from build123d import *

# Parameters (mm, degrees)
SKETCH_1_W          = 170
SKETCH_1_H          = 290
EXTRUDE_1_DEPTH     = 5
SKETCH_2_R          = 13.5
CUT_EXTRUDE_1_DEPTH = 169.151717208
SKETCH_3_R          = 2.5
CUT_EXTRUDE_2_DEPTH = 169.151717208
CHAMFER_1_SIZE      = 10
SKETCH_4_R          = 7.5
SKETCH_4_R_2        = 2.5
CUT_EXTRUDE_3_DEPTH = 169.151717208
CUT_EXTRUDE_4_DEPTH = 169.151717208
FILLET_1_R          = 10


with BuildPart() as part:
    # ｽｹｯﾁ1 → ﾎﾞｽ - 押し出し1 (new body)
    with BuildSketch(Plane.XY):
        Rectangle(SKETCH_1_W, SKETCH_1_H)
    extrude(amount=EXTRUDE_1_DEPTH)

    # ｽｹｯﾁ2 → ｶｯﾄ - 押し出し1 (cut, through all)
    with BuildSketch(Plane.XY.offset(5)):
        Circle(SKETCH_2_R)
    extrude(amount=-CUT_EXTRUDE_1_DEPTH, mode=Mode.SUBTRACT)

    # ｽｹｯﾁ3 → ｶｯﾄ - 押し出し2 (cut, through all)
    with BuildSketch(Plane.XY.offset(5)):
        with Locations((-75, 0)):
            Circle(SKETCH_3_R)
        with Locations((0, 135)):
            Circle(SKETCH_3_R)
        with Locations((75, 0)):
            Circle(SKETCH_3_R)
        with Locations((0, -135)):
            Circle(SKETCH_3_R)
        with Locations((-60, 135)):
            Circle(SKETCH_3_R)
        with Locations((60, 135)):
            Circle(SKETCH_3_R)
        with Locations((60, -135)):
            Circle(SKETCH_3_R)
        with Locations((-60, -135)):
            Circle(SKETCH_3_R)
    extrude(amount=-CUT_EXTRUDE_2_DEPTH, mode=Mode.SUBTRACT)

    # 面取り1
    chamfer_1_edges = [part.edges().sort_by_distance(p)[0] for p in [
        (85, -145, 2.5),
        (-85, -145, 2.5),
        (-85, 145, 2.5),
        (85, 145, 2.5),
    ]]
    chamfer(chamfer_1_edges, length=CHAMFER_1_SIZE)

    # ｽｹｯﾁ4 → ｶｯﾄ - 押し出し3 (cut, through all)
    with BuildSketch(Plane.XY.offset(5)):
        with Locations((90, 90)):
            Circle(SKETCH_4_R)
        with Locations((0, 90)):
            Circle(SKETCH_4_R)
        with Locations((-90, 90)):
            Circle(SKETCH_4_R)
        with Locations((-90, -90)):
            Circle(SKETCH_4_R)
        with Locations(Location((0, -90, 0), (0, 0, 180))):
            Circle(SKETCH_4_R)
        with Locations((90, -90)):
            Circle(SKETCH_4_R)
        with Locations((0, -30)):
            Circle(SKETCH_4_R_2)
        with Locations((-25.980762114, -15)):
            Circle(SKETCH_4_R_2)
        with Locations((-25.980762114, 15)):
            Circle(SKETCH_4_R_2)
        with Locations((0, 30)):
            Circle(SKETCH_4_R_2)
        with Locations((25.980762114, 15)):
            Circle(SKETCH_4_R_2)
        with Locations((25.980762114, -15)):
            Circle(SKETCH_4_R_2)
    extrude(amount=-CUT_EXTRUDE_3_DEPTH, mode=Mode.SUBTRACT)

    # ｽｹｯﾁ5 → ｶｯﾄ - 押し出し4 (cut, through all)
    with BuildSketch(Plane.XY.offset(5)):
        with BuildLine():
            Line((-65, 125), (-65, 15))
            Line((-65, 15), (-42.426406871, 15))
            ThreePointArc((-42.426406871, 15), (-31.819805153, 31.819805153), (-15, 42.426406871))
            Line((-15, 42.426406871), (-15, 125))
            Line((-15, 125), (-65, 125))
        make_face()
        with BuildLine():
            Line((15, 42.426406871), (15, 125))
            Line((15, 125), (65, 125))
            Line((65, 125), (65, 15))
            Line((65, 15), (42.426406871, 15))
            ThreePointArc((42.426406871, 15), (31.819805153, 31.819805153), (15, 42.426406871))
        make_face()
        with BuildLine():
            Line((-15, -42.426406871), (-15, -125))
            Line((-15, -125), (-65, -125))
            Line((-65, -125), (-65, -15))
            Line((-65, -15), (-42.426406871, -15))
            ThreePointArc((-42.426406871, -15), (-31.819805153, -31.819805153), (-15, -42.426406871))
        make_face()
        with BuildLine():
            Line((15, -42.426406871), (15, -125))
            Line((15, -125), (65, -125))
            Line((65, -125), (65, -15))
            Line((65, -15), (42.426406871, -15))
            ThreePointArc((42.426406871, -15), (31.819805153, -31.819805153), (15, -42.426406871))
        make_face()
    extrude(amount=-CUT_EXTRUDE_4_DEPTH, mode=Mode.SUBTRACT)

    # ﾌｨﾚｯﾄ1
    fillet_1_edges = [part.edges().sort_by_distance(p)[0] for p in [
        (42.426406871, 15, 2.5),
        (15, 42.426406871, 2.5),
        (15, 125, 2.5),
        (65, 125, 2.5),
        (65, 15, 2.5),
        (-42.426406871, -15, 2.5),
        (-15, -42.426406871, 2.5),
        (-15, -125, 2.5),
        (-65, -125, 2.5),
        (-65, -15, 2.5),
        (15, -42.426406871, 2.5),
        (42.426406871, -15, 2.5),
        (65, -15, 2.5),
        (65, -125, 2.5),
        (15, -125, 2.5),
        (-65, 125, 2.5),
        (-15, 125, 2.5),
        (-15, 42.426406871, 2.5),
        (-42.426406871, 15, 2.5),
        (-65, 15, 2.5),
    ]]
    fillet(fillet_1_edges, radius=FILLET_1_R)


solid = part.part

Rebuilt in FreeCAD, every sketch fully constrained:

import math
import FreeCAD as App
import Part
import Sketcher
from FreeCAD import Vector
Q = App.Units.Quantity


def edges_at(feature, points):
    """Names of the edges that pass closest to the given points."""
    edges = feature.Shape.Edges
    near = lambda p: min(range(len(edges)), key=lambda i: edges[i].distToShape(Part.Vertex(*p))[0])
    return sorted({f"Edge{near(p) + 1}" for p in points})


def add_polygon(sketch, points):
    """Adds a closed chain of lines whose ends are joined by coincident constraints."""
    first, n = sketch.GeometryCount, len(points)
    for a, b in zip(points, points[1:] + points[:1]):
        sketch.addGeometry(Part.LineSegment(App.Vector(*a, 0), App.Vector(*b, 0)), False)
    for i in range(n):
        sketch.addConstraint(Sketcher.Constraint("Coincident", first + i, 2, first + (i + 1) % n, 1))

doc = App.newDocument("Part")
body = doc.addObject("PartDesign::Body", "Body")

# Sketch on XY plane
sketch1 = doc.addObject("Sketcher::SketchObject", "Sketch")
body.addObject(sketch1)
sketch1.AttachmentSupport = (doc.XY_Plane, [""])
sketch1.MapMode = "FlatFace"
add_polygon(sketch1, [(-85, 145), (-85, -145), (85, -145), (85, 145)])  # lines 0-3
sketch1.addConstraint([
    Sketcher.Constraint("Vertical", 0),
    Sketcher.Constraint("Horizontal", 1),
    Sketcher.Constraint("Vertical", 2),
    Sketcher.Constraint("Horizontal", 3),
    Sketcher.Constraint("Symmetric", 0, 2, 2, 2, -1, 1),
    Sketcher.Constraint("DistanceX", 1, 1, 1, 2, Q("170 mm")),
    Sketcher.Constraint("DistanceY", 0, 2, 0, 1, Q("290 mm")),
])
pad1 = doc.addObject("PartDesign::Pad", "Pad")
body.addObject(pad1)
pad1.Profile = sketch1
pad1.Length = 5

# Sketch on XY plane
sketch2 = doc.addObject("Sketcher::SketchObject", "Sketch001")
body.addObject(sketch2)
sketch2.AttachmentSupport = (doc.XY_Plane, [""])
sketch2.MapMode = "FlatFace"
sketch2.AttachmentOffset = App.Placement(Vector(0, 0, 5), App.Rotation())
sketch2.addGeometry(Part.Circle(Vector(0, 0, 0), Vector(0, 0, 1), 14), False)
sketch2.addConstraint([
    Sketcher.Constraint("Coincident", 0, 3, -1, 1),
    Sketcher.Constraint("Diameter", 0, Q("27 mm")),
])
pocket1 = doc.addObject("PartDesign::Pocket", "Pocket")
body.addObject(pocket1)
pocket1.Profile = sketch2
pocket1.Type = "ThroughAll"

# Sketch on XY plane
sketch3 = doc.addObject("Sketcher::SketchObject", "Sketch002")
body.addObject(sketch3)
sketch3.AttachmentSupport = (doc.XY_Plane, [""])
sketch3.MapMode = "FlatFace"
sketch3.AttachmentOffset = App.Placement(Vector(0, 0, 5), App.Rotation())
sketch3.addGeometry([
    Part.Circle(Vector(-75, 0, 0), Vector(0, 0, 1), 2.5),  # 0
    Part.Circle(Vector(0, 135, 0), Vector(0, 0, 1), 2.5),  # 1
    Part.Circle(Vector(75, 0, 0), Vector(0, 0, 1), 2.5),  # 2
    Part.Circle(Vector(0, -135, 0), Vector(0, 0, 1), 2.5),  # 3
    Part.Circle(Vector(-60, 135, 0), Vector(0, 0, 1), 2.5),  # 4
    Part.Circle(Vector(60, 135, 0), Vector(0, 0, 1), 2.5),  # 5
    Part.Circle(Vector(60, -135, 0), Vector(0, 0, 1), 2.5),  # 6
    Part.Circle(Vector(-60, -135, 0), Vector(0, 0, 1), 2.5),  # 7
], False)
sketch3.addConstraint([
    Sketcher.Constraint("Equal", 0, 1),
    Sketcher.Constraint("Equal", 1, 2),
    Sketcher.Constraint("Equal", 2, 3),
    Sketcher.Constraint("Equal", 3, 4),
    Sketcher.Constraint("Equal", 4, 5),
    Sketcher.Constraint("Equal", 5, 6),
    Sketcher.Constraint("Equal", 6, 7),
    Sketcher.Constraint("Symmetric", 0, 3, 2, 3, -1, 1),
    Sketcher.Constraint("Symmetric", 1, 3, 3, 3, -1, 1),
    Sketcher.Constraint("Symmetric", 4, 3, 6, 3, -1, 1),
    Sketcher.Constraint("Symmetric", 5, 3, 7, 3, -1, 1),
    Sketcher.Constraint("Symmetric", 4, 3, 5, 3, -2),
    Sketcher.Constraint("PointOnObject", 0, 3, -1),
    Sketcher.Constraint("PointOnObject", 1, 3, -2),
    Sketcher.Constraint("Horizontal", 1, 3, 4, 3),
    Sketcher.Constraint("Diameter", 0, Q("5 mm")),
    Sketcher.Constraint("DistanceX", 0, 3, -1, 1, Q("75 mm")),
    Sketcher.Constraint("DistanceY", -1, 1, 1, 3, Q("135 mm")),
    Sketcher.Constraint("DistanceX", 4, 3, -1, 1, Q("60 mm")),
])
pocket2 = doc.addObject("PartDesign::Pocket", "Pocket001")
body.addObject(pocket2)
pocket2.Profile = sketch3
pocket2.Type = "ThroughAll"
doc.recompute()

chamfer = doc.addObject("PartDesign::Chamfer", "Chamfer")
body.addObject(chamfer)
chamfer.Base = (pocket2, edges_at(pocket2, [
    (85, -145, 2.5),
    (-85, -145, 2.5),
    (-85, 145, 2.5),
    (85, 145, 2.5),
]))
chamfer.Size = 10

# Sketch on XY plane
sketch4 = doc.addObject("Sketcher::SketchObject", "Sketch003")
body.addObject(sketch4)
sketch4.AttachmentSupport = (doc.XY_Plane, [""])
sketch4.MapMode = "FlatFace"
sketch4.AttachmentOffset = App.Placement(Vector(0, 0, 5), App.Rotation())
sketch4.addGeometry([
    Part.Circle(Vector(90, 90, 0), Vector(0, 0, 1), 7.5),  # 0
    Part.Circle(Vector(0, 90, 0), Vector(0, 0, 1), 7.5),  # 1
    Part.Circle(Vector(-90, 90, 0), Vector(0, 0, 1), 7.5),  # 2
    Part.Circle(Vector(-90, -90, 0), Vector(0, 0, 1), 7.5),  # 3
    Part.Circle(Vector(0, -90, 0), Vector(0, 0, 1), 7.5),  # 4
    Part.Circle(Vector(90, -90, 0), Vector(0, 0, 1), 7.5),  # 5
    Part.Circle(Vector(0, -30, 0), Vector(0, 0, 1), 2.5),  # 6
    Part.Circle(Vector(-26, -15, 0), Vector(0, 0, 1), 2.5),  # 7
    Part.Circle(Vector(-26, 15, 0), Vector(0, 0, 1), 2.5),  # 8
    Part.Circle(Vector(0, 30, 0), Vector(0, 0, 1), 2.5),  # 9
    Part.Circle(Vector(26, 15, 0), Vector(0, 0, 1), 2.5),  # 10
    Part.Circle(Vector(26, -15, 0), Vector(0, 0, 1), 2.5),  # 11
], False)
sketch4.addConstraint([
    Sketcher.Constraint("Equal", 0, 1),
    Sketcher.Constraint("Equal", 1, 2),
    Sketcher.Constraint("Equal", 2, 3),
    Sketcher.Constraint("Equal", 3, 4),
    Sketcher.Constraint("Equal", 4, 5),
    Sketcher.Constraint("Equal", 6, 7),
    Sketcher.Constraint("Equal", 7, 8),
    Sketcher.Constraint("Equal", 8, 9),
    Sketcher.Constraint("Equal", 9, 10),
    Sketcher.Constraint("Equal", 10, 11),
    Sketcher.Constraint("Symmetric", 0, 3, 3, 3, -1, 1),
    Sketcher.Constraint("Symmetric", 1, 3, 4, 3, -1, 1),
    Sketcher.Constraint("Symmetric", 2, 3, 5, 3, -1, 1),
    Sketcher.Constraint("Symmetric", 6, 3, 9, 3, -1, 1),
    Sketcher.Constraint("Symmetric", 7, 3, 10, 3, -1, 1),
    Sketcher.Constraint("Symmetric", 8, 3, 11, 3, -1, 1),
    Sketcher.Constraint("Symmetric", 0, 3, 2, 3, -2),
    Sketcher.Constraint("Symmetric", 8, 3, 10, 3, -2),
    Sketcher.Constraint("PointOnObject", 1, 3, -2),
    Sketcher.Constraint("PointOnObject", 6, 3, -2),
    Sketcher.Constraint("Horizontal", 0, 3, 1, 3),
    Sketcher.Constraint("Diameter", 0, Q("15 mm")),
    Sketcher.Constraint("Diameter", 6, Q("5 mm")),
    Sketcher.Constraint("DistanceX", -1, 1, 0, 3, Q("90 mm")),
    Sketcher.Constraint("DistanceY", -1, 1, 0, 3, Q("90 mm")),
    Sketcher.Constraint("DistanceY", 6, 3, -1, 1, Q("30 mm")),
    Sketcher.Constraint("DistanceY", 7, 3, -1, 1, Q("15 mm")),
    Sketcher.Constraint("DistanceX", 7, 3, -1, 1, Q("25.980762 mm")),
])
pocket3 = doc.addObject("PartDesign::Pocket", "Pocket002")
body.addObject(pocket3)
pocket3.Profile = sketch4
pocket3.Type = "ThroughAll"

# Sketch on XY plane
sketch5 = doc.addObject("Sketcher::SketchObject", "Sketch004")
body.addObject(sketch5)
sketch5.AttachmentSupport = (doc.XY_Plane, [""])
sketch5.MapMode = "FlatFace"
sketch5.AttachmentOffset = App.Placement(Vector(0, 0, 5), App.Rotation())
sketch5.addGeometry([
    Part.LineSegment(Vector(-65, 125, 0), Vector(-65, 15, 0)),  # 0
    Part.LineSegment(Vector(-65, 15, 0), Vector(-42, 15, 0)),  # 1
    Part.ArcOfCircle(Part.Circle(Vector(0, 0, 0), Vector(0, 0, 1), 45), math.radians(109), math.radians(161)),  # 2
    Part.LineSegment(Vector(-15, 42, 0), Vector(-15, 125, 0)),  # 3
    Part.LineSegment(Vector(-15, 125, 0), Vector(-65, 125, 0)),  # 4
    Part.LineSegment(Vector(15, 125, 0), Vector(15, 42, 0)),  # 5
    Part.ArcOfCircle(Part.Circle(Vector(0, 0, 0), Vector(0, 0, 1), 45), math.radians(19), math.radians(71)),  # 6
    Part.LineSegment(Vector(42, 15, 0), Vector(65, 15, 0)),  # 7
    Part.LineSegment(Vector(65, 15, 0), Vector(65, 125, 0)),  # 8
    Part.LineSegment(Vector(65, 125, 0), Vector(15, 125, 0)),  # 9
    Part.LineSegment(Vector(-15, -125, 0), Vector(-15, -42, 0)),  # 10
    Part.ArcOfCircle(Part.Circle(Vector(0, 0, 0), Vector(0, 0, 1), 45), math.radians(-161), math.radians(-109)),  # 11
    Part.LineSegment(Vector(-42, -15, 0), Vector(-65, -15, 0)),  # 12
    Part.LineSegment(Vector(-65, -15, 0), Vector(-65, -125, 0)),  # 13
    Part.LineSegment(Vector(-65, -125, 0), Vector(-15, -125, 0)),  # 14
    Part.LineSegment(Vector(15, -42, 0), Vector(15, -125, 0)),  # 15
    Part.LineSegment(Vector(15, -125, 0), Vector(65, -125, 0)),  # 16
    Part.LineSegment(Vector(65, -125, 0), Vector(65, -15, 0)),  # 17
    Part.LineSegment(Vector(65, -15, 0), Vector(42, -15, 0)),  # 18
    Part.ArcOfCircle(Part.Circle(Vector(0, 0, 0), Vector(0, 0, 1), 45), math.radians(-71), math.radians(-19)),  # 19
], False)
sketch5.addConstraint([
    Sketcher.Constraint("Coincident", 0, 2, 1, 1),
    Sketcher.Constraint("Coincident", 1, 2, 2, 2),
    Sketcher.Constraint("Coincident", 2, 1, 3, 1),
    Sketcher.Constraint("Coincident", 3, 2, 4, 1),
    Sketcher.Constraint("Coincident", 4, 2, 0, 1),
    Sketcher.Constraint("Coincident", 5, 2, 6, 2),
    Sketcher.Constraint("Coincident", 6, 1, 7, 1),
    Sketcher.Constraint("Coincident", 7, 2, 8, 1),
    Sketcher.Constraint("Coincident", 8, 2, 9, 1),
    Sketcher.Constraint("Coincident", 9, 2, 5, 1),
    Sketcher.Constraint("Coincident", 10, 2, 11, 2),
    Sketcher.Constraint("Coincident", 11, 1, 12, 1),
    Sketcher.Constraint("Coincident", 12, 2, 13, 1),
    Sketcher.Constraint("Coincident", 13, 2, 14, 1),
    Sketcher.Constraint("Coincident", 14, 2, 10, 1),
    Sketcher.Constraint("Coincident", 15, 2, 16, 1),
    Sketcher.Constraint("Coincident", 16, 2, 17, 1),
    Sketcher.Constraint("Coincident", 17, 2, 18, 1),
    Sketcher.Constraint("Coincident", 18, 2, 19, 2),
    Sketcher.Constraint("Coincident", 19, 1, 15, 1),
    Sketcher.Constraint("Vertical", 0),
    Sketcher.Constraint("Horizontal", 1),
    Sketcher.Constraint("Vertical", 3),
    Sketcher.Constraint("Horizontal", 4),
    Sketcher.Constraint("Vertical", 5),
    Sketcher.Constraint("Horizontal", 7),
    Sketcher.Constraint("Vertical", 8),
    Sketcher.Constraint("Horizontal", 9),
    Sketcher.Constraint("Vertical", 10),
    Sketcher.Constraint("Horizontal", 12),
    Sketcher.Constraint("Vertical", 13),
    Sketcher.Constraint("Horizontal", 14),
    Sketcher.Constraint("Vertical", 15),
    Sketcher.Constraint("Horizontal", 16),
    Sketcher.Constraint("Vertical", 17),
    Sketcher.Constraint("Horizontal", 18),
    Sketcher.Constraint("Coincident", 2, 3, -1, 1),
    Sketcher.Constraint("Coincident", 6, 3, -1, 1),
    Sketcher.Constraint("Coincident", 11, 3, -1, 1),
    Sketcher.Constraint("Coincident", 19, 3, -1, 1),
    Sketcher.Constraint("Equal", 2, 6),
    Sketcher.Constraint("Equal", 6, 11),
    Sketcher.Constraint("Equal", 11, 19),
    Sketcher.Constraint("Symmetric", 7, 2, 12, 2, -1, 1),
    Sketcher.Constraint("Symmetric", 9, 2, 14, 2, -1, 1),
    Sketcher.Constraint("Symmetric", 3, 2, 15, 2, -1, 1),
    Sketcher.Constraint("Symmetric", 0, 2, 17, 2, -1, 1),
    Sketcher.Constraint("Symmetric", 0, 2, 7, 2, -2),
    Sketcher.Constraint("Symmetric", 3, 2, 9, 2, -2),
    Sketcher.Constraint("Radius", 2, Q("45 mm")),
    Sketcher.Constraint("DistanceX", 4, 2, 4, 1, Q("50 mm")),
    Sketcher.Constraint("DistanceY", 0, 2, 0, 1, Q("110 mm")),
    Sketcher.Constraint("DistanceX", 0, 2, -1, 1, Q("65 mm")),
    Sketcher.Constraint("DistanceY", -1, 1, 0, 2, Q("15 mm")),
])
pocket4 = doc.addObject("PartDesign::Pocket", "Pocket003")
body.addObject(pocket4)
pocket4.Profile = sketch5
pocket4.Type = "ThroughAll"
doc.recompute()

fillet = doc.addObject("PartDesign::Fillet", "Fillet")
body.addObject(fillet)
fillet.Base = (pocket4, edges_at(pocket4, [
    (42.426, 15, 2.5),
    (15, 42.426, 2.5),
    (15, 125, 2.5),
    (65, 125, 2.5),
    (65, 15, 2.5),
    (-42.426, -15, 2.5),
    (-15, -42.426, 2.5),
    (-15, -125, 2.5),
    (-65, -125, 2.5),
    (-65, -15, 2.5),
    (15, -42.426, 2.5),
    (42.426, -15, 2.5),
    (65, -15, 2.5),
    (65, -125, 2.5),
    (15, -125, 2.5),
    (-65, 125, 2.5),
    (-15, 125, 2.5),
    (-15, 42.426, 2.5),
    (-42.426, 15, 2.5),
    (-65, 15, 2.5),
]))
fillet.Radius = 10

doc.recompute()
